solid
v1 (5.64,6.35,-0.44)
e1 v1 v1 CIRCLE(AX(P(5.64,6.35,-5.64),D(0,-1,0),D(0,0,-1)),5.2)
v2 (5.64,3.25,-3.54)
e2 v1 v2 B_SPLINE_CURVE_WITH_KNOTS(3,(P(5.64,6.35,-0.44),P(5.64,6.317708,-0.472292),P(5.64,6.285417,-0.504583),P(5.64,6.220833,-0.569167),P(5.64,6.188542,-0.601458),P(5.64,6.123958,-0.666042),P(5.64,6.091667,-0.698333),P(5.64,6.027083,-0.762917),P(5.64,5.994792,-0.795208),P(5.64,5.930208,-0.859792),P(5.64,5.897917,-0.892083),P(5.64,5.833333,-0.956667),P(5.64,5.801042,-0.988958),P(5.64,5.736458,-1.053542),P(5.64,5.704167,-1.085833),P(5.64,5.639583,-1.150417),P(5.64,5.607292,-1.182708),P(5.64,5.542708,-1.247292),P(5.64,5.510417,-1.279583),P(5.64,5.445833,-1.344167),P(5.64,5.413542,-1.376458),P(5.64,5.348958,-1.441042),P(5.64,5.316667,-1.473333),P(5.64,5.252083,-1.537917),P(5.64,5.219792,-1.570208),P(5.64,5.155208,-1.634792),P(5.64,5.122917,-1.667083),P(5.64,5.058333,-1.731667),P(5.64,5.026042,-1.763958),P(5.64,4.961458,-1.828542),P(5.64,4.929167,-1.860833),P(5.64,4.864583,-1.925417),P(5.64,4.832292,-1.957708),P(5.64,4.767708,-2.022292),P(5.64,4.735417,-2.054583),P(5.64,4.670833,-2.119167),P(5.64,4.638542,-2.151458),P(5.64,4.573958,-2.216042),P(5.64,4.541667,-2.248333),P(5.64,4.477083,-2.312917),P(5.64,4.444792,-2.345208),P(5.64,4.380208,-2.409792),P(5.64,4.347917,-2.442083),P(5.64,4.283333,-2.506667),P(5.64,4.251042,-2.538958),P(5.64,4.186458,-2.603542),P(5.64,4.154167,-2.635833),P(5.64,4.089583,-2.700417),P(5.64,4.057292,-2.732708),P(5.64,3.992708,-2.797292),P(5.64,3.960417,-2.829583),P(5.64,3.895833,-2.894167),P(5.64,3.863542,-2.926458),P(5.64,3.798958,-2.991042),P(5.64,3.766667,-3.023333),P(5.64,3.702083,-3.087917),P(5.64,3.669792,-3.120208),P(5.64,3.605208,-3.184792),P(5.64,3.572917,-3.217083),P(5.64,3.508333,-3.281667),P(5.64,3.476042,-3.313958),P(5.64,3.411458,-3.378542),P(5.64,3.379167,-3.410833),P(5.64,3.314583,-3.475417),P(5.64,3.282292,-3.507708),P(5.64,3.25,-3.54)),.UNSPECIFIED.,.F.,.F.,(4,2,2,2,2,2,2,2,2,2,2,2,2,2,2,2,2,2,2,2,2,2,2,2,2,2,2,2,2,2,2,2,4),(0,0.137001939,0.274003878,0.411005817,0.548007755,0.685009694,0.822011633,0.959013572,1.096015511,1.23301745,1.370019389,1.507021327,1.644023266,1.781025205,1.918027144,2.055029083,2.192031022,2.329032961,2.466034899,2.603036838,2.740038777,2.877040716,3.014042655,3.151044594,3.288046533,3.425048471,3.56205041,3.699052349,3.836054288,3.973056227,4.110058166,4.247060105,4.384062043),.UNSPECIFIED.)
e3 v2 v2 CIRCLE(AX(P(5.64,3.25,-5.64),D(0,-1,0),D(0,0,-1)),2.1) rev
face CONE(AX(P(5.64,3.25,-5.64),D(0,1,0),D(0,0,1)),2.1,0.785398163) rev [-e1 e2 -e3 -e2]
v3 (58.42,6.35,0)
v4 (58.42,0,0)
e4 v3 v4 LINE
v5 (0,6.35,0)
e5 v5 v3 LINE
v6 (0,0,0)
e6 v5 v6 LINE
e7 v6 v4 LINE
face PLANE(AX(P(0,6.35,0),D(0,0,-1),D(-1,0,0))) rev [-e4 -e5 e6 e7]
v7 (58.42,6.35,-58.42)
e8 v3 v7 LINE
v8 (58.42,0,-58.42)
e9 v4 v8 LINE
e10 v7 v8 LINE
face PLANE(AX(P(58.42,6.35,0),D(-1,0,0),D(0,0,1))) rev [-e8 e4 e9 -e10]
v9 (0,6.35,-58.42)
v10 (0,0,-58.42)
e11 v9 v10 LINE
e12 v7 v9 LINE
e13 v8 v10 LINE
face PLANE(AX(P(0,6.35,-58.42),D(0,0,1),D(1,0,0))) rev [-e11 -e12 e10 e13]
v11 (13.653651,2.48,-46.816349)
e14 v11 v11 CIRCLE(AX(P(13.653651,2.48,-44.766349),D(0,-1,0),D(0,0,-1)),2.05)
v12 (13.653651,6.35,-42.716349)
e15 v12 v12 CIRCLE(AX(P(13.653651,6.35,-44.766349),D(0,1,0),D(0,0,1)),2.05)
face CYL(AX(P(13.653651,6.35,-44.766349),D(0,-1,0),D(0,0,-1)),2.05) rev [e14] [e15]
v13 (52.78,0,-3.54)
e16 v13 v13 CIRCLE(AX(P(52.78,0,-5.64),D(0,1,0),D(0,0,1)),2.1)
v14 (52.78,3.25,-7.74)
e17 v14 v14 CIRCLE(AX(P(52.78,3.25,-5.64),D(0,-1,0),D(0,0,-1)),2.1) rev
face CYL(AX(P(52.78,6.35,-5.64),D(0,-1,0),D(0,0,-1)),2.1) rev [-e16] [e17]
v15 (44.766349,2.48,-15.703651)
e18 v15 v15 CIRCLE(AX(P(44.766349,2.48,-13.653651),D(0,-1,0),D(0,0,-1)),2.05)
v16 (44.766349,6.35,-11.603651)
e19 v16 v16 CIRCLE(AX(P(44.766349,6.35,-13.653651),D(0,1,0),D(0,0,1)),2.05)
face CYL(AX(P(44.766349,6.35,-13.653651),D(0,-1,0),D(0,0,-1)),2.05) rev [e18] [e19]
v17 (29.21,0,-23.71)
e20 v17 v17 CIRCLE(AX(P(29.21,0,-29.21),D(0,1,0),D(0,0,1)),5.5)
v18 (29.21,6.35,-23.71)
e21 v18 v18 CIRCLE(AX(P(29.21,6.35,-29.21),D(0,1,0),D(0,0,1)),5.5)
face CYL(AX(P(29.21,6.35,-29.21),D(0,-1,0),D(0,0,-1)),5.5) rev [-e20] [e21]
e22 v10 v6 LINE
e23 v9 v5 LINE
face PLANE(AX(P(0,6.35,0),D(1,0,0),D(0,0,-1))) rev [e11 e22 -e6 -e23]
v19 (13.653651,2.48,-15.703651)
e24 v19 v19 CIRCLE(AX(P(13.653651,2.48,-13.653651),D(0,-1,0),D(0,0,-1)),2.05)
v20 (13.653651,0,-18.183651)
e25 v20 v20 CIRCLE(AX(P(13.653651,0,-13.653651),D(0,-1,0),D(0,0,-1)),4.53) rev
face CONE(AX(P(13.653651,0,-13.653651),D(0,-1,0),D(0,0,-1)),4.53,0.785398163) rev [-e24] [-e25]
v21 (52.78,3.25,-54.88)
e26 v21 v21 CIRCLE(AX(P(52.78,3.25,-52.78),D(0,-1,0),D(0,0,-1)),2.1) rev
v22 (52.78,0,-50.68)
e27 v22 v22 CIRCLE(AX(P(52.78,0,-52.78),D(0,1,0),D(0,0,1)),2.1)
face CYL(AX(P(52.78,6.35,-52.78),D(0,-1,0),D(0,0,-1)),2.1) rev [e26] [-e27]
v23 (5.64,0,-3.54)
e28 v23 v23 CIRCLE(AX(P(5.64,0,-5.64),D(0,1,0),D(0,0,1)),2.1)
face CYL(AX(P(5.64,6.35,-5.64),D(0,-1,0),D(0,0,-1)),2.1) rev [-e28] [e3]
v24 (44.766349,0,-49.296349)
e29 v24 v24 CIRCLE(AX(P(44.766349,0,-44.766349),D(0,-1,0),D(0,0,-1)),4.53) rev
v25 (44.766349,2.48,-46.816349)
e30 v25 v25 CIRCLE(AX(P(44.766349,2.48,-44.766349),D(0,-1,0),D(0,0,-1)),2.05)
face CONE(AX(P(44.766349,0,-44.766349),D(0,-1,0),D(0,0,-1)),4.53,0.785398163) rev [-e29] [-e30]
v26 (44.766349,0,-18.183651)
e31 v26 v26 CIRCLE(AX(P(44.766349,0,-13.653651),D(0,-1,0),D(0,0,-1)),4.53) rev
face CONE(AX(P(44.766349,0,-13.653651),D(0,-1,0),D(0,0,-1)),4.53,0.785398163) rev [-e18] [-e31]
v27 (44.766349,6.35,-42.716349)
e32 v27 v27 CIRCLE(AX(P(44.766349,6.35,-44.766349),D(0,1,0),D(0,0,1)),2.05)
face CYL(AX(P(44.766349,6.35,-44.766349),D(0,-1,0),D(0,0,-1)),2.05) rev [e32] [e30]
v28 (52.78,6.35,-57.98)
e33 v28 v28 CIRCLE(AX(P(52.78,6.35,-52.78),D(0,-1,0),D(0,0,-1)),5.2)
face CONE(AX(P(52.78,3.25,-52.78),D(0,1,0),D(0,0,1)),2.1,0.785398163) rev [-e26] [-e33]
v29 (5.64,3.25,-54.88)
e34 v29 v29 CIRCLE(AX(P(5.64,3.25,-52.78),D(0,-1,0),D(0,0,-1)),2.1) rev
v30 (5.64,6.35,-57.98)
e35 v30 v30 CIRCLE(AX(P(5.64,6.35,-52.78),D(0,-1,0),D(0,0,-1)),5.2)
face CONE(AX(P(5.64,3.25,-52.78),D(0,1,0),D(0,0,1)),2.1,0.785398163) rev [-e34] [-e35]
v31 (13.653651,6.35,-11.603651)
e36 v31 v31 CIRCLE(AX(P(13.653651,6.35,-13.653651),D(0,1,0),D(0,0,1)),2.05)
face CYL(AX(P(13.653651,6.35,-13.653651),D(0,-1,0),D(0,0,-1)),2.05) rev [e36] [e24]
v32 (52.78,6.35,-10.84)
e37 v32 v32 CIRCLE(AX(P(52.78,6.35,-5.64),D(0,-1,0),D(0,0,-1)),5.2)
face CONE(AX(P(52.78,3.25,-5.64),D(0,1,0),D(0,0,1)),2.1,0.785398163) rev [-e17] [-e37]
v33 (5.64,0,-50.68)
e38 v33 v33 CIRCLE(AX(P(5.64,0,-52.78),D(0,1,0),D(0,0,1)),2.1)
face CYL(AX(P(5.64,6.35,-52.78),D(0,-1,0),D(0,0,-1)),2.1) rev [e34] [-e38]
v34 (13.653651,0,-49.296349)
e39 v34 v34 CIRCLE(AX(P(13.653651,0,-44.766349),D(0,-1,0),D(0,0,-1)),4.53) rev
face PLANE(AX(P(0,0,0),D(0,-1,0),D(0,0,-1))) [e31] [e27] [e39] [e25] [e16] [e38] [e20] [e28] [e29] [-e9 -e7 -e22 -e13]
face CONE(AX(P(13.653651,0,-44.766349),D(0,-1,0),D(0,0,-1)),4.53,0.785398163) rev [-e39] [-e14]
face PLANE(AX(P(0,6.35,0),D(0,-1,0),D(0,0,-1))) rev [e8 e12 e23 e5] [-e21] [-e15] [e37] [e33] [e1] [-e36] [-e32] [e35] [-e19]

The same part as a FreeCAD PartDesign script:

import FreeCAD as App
import Part
import Sketcher

V = App.Vector
Q = App.Units.Quantity


def edges_at(feature, points):
    """Names of the edges that pass closest to the given points."""
    edges = feature.Shape.Edges
    near = lambda p: min(range(len(edges)), key=lambda i: edges[i].distToShape(Part.Vertex(*p))[0])
    return sorted({f"Edge{near(p) + 1}" for p in points})


def add_polygon(sketch, points):
    """Adds a closed chain of lines whose ends are joined by coincident constraints."""
    first, n = sketch.GeometryCount, len(points)
    for a, b in zip(points, points[1:] + points[:1]):
        sketch.addGeometry(Part.LineSegment(App.Vector(*a, 0), App.Vector(*b, 0)), False)
    for i in range(n):
        sketch.addConstraint(Sketcher.Constraint("Coincident", first + i, 2, first + (i + 1) % n, 1))

doc = App.newDocument("Part")
params = doc.addObject("Spreadsheet::Sheet", "Params")
for row, (alias, value) in enumerate([
    ("sketch1_diameter", "11 mm"),
    ("sketch1_diameter2", "4.2 mm"),
    ("sketch1_diameter3", "4.1 mm"),
    ("sketch1_width", "58.42 mm"),
    ("pad1_length", "6.35 mm"),
    ("chamfer_size", "2.48 mm"),
    ("chamfer2_size", "3.1 mm"),
], start=1):
    params.set(f"A{row}", alias)
    params.set(f"B{row}", "=" + value)
    params.setAlias(f"B{row}", alias)

body = doc.addObject("PartDesign::Body", "Body")

sketch1 = doc.addObject("Sketcher::SketchObject", "Sketch")
body.addObject(sketch1)
sketch1.AttachmentSupport = (doc.XZ_Plane, [""])
sketch1.MapMode = "FlatFace"
add_polygon(sketch1, [(0, -58.4), (0, 0), (58.4, 0), (58.4, -58.4)])
sketch1.addGeometry(Part.Circle(V(5.6, -5.6, 0), V(0, 0, 1), 2.1), False)
sketch1.addGeometry(Part.Circle(V(13.7, -13.7, 0), V(0, 0, 1), 2), False)
sketch1.addGeometry(Part.Circle(V(29.2, -29.2, 0), V(0, 0, 1), 5.5), False)
sketch1.addGeometry(Part.Circle(V(52.8, -5.6, 0), V(0, 0, 1), 2.1), False)
sketch1.addGeometry(Part.Circle(V(44.8, -13.7, 0), V(0, 0, 1), 2), False)
sketch1.addGeometry(Part.Circle(V(13.7, -44.8, 0), V(0, 0, 1), 2), False)
sketch1.addGeometry(Part.Circle(V(5.6, -52.8, 0), V(0, 0, 1), 2.1), False)
sketch1.addGeometry(Part.Circle(V(44.8, -44.8, 0), V(0, 0, 1), 2), False)
sketch1.addGeometry(Part.Circle(V(52.8, -52.8, 0), V(0, 0, 1), 2.1), False)
sketch1.addConstraint([
    Sketcher.Constraint("Vertical", 0),
    Sketcher.Constraint("Horizontal", 1),
    Sketcher.Constraint("Vertical", 2),
    Sketcher.Constraint("Horizontal", 3),
    Sketcher.Constraint("Coincident", 0, 2, -1, 1),
    Sketcher.Constraint("Equal", 4, 7),
    Sketcher.Constraint("Equal", 5, 8),
    Sketcher.Constraint("Equal", 8, 9),
    Sketcher.Constraint("Equal", 7, 10),
    Sketcher.Constraint("Equal", 9, 11),
    Sketcher.Constraint("Equal", 10, 12),
    Sketcher.Constraint("Horizontal", 4, 3, 7, 3),
    Sketcher.Constraint("Horizontal", 5, 3, 8, 3),
    Sketcher.Constraint("Horizontal", 9, 3, 11, 3),
    Sketcher.Constraint("Horizontal", 10, 3, 12, 3),
    Sketcher.Constraint("Vertical", 5, 3, 9, 3),
    Sketcher.Constraint("Vertical", 4, 3, 10, 3),
    Sketcher.Constraint("Vertical", 8, 3, 11, 3),
    Sketcher.Constraint("Vertical", 7, 3, 12, 3),
    Sketcher.Constraint("Equal", 3, 0),
    Sketcher.Constraint("Diameter", 6, Q("11 mm")),
    Sketcher.Constraint("Diameter", 4, Q("4.2 mm")),
    Sketcher.Constraint("Diameter", 5, Q("4.1 mm")),
    Sketcher.Constraint("DistanceX", 1, 1, 1, 2, Q("58.42 mm")),
    Sketcher.Constraint("DistanceX", -1, 1, 4, 3, Q("5.64 mm")),
    Sketcher.Constraint("DistanceY", 4, 3, -1, 1, Q("5.64 mm")),
    Sketcher.Constraint("DistanceX", -1, 1, 6, 3, Q("29.21 mm")),
    Sketcher.Constraint("DistanceY", 6, 3, -1, 1, Q("29.21 mm")),
    Sketcher.Constraint("DistanceX", -1, 1, 7, 3, Q("52.78 mm")),
    Sketcher.Constraint("DistanceY", 10, 3, -1, 1, Q("52.78 mm")),
    Sketcher.Constraint("DistanceX", 5, 3, 8, 3, Q("31.112698 mm")),
    Sketcher.Constraint("DistanceY", 9, 3, 5, 3, Q("31.112698 mm")),
    Sketcher.Constraint("DistanceX", -1, 1, 5, 3, Q("13.653651 mm")),
    Sketcher.Constraint("DistanceY", 5, 3, -1, 1, Q("13.653651 mm")),
])
sketch1.setExpression("Constraints[24]", "Params.sketch1_diameter")
sketch1.setExpression("Constraints[25]", "Params.sketch1_diameter2")
sketch1.setExpression("Constraints[26]", "Params.sketch1_diameter3")
sketch1.setExpression("Constraints[27]", "Params.sketch1_width")
pad1 = doc.addObject("PartDesign::Pad", "Pad")
body.addObject(pad1)
pad1.Profile = sketch1
pad1.setExpression("Length", "Params.pad1_length")
pad1.Reversed = True
doc.recompute()

chamfer = doc.addObject("PartDesign::Chamfer", "Chamfer")
body.addObject(chamfer)
chamfer.Base = (pad1, edges_at(pad1, [
    (13.654, 0, -46.816),
    (44.766, 0, -46.816),
    (44.766, 0, -15.704),
    (13.654, 0, -15.704),
]))
chamfer.setExpression("Size", "Params.chamfer_size")
doc.recompute()

chamfer2 = doc.addObject("PartDesign::Chamfer", "Chamfer001")
body.addObject(chamfer2)
chamfer2.Base = (chamfer, edges_at(chamfer, [
    (5.64, 6.35, -54.88),
    (52.78, 6.35, -54.88),
    (52.78, 6.35, -7.74),
    (5.64, 6.35, -7.74),
]))
chamfer2.setExpression("Size", "Params.chamfer2_size")

doc.recompute()
